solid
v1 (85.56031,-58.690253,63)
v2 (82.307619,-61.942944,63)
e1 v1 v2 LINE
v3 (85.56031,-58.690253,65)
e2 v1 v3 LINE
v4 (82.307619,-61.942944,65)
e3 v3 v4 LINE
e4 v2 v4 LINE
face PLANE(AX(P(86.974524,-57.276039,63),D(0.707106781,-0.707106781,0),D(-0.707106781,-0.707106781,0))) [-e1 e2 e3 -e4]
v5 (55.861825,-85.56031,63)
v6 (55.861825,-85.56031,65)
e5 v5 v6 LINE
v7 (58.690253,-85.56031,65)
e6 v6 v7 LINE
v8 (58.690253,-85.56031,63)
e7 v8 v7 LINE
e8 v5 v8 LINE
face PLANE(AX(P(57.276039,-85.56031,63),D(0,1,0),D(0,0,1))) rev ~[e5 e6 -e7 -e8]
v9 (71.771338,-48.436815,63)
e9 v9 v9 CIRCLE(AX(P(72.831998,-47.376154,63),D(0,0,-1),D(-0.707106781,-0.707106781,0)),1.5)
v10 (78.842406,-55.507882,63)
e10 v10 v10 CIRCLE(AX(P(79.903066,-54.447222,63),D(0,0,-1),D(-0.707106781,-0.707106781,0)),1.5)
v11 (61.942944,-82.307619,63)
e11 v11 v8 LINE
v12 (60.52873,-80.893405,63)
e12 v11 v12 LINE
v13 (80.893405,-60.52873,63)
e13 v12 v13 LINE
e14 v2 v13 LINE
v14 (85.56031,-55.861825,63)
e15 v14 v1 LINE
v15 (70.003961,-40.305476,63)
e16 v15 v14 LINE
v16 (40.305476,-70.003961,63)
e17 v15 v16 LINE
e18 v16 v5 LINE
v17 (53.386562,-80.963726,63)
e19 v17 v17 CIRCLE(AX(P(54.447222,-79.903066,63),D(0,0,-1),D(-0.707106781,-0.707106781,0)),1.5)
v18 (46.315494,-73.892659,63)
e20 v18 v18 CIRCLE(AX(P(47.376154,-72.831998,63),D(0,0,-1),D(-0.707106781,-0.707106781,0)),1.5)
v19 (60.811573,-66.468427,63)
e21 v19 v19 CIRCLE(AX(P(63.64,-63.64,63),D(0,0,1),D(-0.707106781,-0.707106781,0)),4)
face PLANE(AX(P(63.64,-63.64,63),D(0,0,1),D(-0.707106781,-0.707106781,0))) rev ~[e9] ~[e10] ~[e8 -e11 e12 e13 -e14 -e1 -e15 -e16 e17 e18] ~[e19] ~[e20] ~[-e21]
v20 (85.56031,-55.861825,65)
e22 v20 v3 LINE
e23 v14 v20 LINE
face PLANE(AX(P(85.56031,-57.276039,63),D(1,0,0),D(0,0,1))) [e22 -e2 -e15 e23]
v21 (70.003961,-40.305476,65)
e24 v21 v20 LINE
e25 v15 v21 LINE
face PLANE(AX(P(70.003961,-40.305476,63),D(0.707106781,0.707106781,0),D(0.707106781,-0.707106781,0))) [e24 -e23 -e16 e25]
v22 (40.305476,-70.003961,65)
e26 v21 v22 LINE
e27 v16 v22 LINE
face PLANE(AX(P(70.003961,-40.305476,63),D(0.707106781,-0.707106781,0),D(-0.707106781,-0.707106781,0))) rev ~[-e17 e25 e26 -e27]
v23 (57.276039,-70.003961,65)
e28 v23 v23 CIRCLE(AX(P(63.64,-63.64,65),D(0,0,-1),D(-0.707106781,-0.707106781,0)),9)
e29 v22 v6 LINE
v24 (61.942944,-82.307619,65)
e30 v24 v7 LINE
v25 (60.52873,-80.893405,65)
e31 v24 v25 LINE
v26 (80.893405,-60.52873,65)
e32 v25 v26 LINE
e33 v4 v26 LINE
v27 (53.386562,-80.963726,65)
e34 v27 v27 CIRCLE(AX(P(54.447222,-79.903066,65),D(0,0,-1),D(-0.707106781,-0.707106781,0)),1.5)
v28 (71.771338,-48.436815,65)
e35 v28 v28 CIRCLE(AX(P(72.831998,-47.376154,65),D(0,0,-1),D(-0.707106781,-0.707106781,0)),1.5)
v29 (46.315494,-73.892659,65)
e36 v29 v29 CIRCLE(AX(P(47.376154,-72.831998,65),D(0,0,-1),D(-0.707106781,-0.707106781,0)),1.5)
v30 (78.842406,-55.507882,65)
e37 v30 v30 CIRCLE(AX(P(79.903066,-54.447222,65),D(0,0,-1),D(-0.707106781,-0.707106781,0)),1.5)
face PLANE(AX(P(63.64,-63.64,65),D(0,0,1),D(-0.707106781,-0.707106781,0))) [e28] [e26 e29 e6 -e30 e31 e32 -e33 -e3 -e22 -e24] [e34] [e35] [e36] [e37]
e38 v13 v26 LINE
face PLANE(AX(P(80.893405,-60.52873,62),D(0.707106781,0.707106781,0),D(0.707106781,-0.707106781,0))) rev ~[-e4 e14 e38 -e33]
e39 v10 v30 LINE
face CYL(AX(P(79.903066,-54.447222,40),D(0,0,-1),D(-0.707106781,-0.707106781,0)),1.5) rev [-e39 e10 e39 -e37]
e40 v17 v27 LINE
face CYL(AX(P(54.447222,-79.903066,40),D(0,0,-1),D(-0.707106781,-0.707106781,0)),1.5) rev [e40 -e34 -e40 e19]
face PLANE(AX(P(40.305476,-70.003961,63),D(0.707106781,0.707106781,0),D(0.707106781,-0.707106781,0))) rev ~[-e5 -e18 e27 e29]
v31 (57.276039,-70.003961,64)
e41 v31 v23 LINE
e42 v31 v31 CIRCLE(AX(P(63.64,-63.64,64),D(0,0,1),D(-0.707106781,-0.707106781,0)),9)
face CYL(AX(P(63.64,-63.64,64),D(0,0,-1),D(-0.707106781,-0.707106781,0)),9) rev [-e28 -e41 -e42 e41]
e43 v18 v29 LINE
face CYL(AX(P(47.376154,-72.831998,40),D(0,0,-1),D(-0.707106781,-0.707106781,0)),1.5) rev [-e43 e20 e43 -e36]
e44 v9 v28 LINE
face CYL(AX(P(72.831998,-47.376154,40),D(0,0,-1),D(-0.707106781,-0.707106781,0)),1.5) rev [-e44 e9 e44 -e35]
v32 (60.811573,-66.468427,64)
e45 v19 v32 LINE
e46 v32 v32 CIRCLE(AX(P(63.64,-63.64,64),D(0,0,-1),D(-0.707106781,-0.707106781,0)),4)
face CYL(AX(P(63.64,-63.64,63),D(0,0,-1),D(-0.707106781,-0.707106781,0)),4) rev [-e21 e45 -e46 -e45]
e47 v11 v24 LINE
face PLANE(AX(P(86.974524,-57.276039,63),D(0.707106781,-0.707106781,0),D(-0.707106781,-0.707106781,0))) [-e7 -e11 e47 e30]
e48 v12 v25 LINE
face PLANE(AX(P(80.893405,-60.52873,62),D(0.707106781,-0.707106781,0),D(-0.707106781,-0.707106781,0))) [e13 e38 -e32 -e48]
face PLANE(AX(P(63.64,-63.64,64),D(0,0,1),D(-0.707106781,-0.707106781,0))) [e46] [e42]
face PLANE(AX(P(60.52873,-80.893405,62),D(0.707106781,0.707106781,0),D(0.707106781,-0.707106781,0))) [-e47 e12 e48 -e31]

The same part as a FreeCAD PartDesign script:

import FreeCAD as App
import Part
import Sketcher

V = App.Vector
Q = App.Units.Quantity


def edges_at(feature, points):
    """Names of the edges that pass closest to the given points."""
    edges = feature.Shape.Edges
    near = lambda p: min(range(len(edges)), key=lambda i: edges[i].distToShape(Part.Vertex(*p))[0])
    return sorted({f"Edge{near(p) + 1}" for p in points})


def add_polygon(sketch, points):
    """Adds a closed chain of lines whose ends are joined by coincident constraints."""
    first, n = sketch.GeometryCount, len(points)
    for a, b in zip(points, points[1:] + points[:1]):
        sketch.addGeometry(Part.LineSegment(App.Vector(*a, 0), App.Vector(*b, 0)), False)
    for i in range(n):
        sketch.addConstraint(Sketcher.Constraint("Coincident", first + i, 2, first + (i + 1) % n, 1))

doc = App.newDocument("Part")
body = doc.addObject("PartDesign::Body", "Body")

# Sketch on XY plane
sketch1 = body.newObject("Sketcher::SketchObject", "Sketch")
sketch1.AttachmentSupport = (doc.getObject("XY_Plane"), [""])
sketch1.MapMode = "FlatFace"
sketch1.addGeometry(Part.Circle(V(0, 0, 0), V(0, 0, 1), 9), False)
sketch1.addConstraint(Sketcher.Constraint("Coincident", 0, 3, -1, 1))
sketch1.addConstraint(Sketcher.Constraint("Diameter", 0, Q("18 mm")))
pad1 = body.newObject("PartDesign::Pad", "Pad")
pad1.Profile = sketch1
pad1.Length = 4
body2 = doc.addObject("PartDesign::Body", "Body001")
doc.recompute()

body.Placement = App.Placement(V(63.64, -63.64, 64), App.Rotation(V(0, 0, 1), 225))
boolean = body2.newObject("PartDesign::Boolean", "Boolean")
boolean.Type = "Fuse"
boolean.addObjects([body])
body3 = doc.addObject("PartDesign::Body", "Body002")

# Sketch on XY plane
sketch2 = body3.newObject("Sketcher::SketchObject", "Sketch001")
sketch2.AttachmentSupport = (doc.getObject("XY_Plane002"), [""])
sketch2.MapMode = "FlatFace"
sketch2.AttachmentOffset = App.Placement(V(0, 0, 24), App.Rotation())
add_polygon(sketch2, [(-14.4, 12), (-14.4, 10), (14.4, 10), (14.4, 12)])  # lines 0-3
sketch2.addConstraint(Sketcher.Constraint("Vertical", 0))
sketch2.addConstraint(Sketcher.Constraint("Horizontal", 1))
sketch2.addConstraint(Sketcher.Constraint("Vertical", 2))
sketch2.addConstraint(Sketcher.Constraint("Horizontal", 3))
sketch2.addConstraint(Sketcher.Constraint("DistanceY", 0, 2, 0, 1, Q("2 mm")))
sketch2.addConstraint(Sketcher.Constraint("DistanceX", 1, 1, 1, 2, Q("28.8 mm")))
sketch2.addConstraint(Sketcher.Constraint("DistanceY", -1, 1, 0, 2, Q("10 mm")))
sketch2.addConstraint(Sketcher.Constraint("DistanceX", 0, 2, -1, 1, Q("14.4 mm")))
pad2 = body3.newObject("PartDesign::Pad", "Pad001")
pad2.Profile = sketch2
pad2.Length = 4
body4 = doc.addObject("PartDesign::Body", "Body003")
doc.recompute()

body3.Placement = App.Placement(V(63.64, -63.64, 38), App.Rotation(V(0, 0, 1), 225))
boolean2 = body4.newObject("PartDesign::Boolean", "Boolean001")
boolean2.Type = "Fuse"
boolean2.addObjects([body3])
body5 = doc.addObject("PartDesign::Body", "Body004")

# Sketch on XY plane
sketch3 = body5.newObject("Sketcher::SketchObject", "Sketch002")
sketch3.AttachmentSupport = (doc.getObject("XY_Plane004"), [""])
sketch3.MapMode = "FlatFace"
sketch3.AttachmentOffset = App.Placement(V(0, 0, -57), App.Rotation())
sketch3.addGeometry(Part.Circle(V(18, 85, 0), V(0, 0, 1), 1.5), False)
sketch3.addConstraint(Sketcher.Constraint("Diameter", 0, Q("3 mm")))
sketch3.addConstraint(Sketcher.Constraint("DistanceX", -1, 1, 0, 3, Q("18 mm")))
sketch3.addConstraint(Sketcher.Constraint("DistanceY", -1, 1, 0, 3, Q("85 mm")))
pad3 = body5.newObject("PartDesign::Pad", "Pad002")
pad3.Profile = sketch3
pad3.Length = 60
body6 = doc.addObject("PartDesign::Body", "Body005")

# Sketch on XY plane
sketch4 = body6.newObject("Sketcher::SketchObject", "Sketch003")
sketch4.AttachmentSupport = (doc.getObject("XY_Plane005"), [""])
sketch4.MapMode = "FlatFace"
sketch4.AttachmentOffset = App.Placement(V(0, 0, -57), App.Rotation())
sketch4.addGeometry(Part.Circle(V(-18, 85, 0), V(0, 0, 1), 1.5), False)
sketch4.addConstraint(Sketcher.Constraint("Diameter", 0, Q("3 mm")))
sketch4.addConstraint(Sketcher.Constraint("DistanceX", 0, 3, -1, 1, Q("18 mm")))
sketch4.addConstraint(Sketcher.Constraint("DistanceY", -1, 1, 0, 3, Q("85 mm")))
pad4 = body6.newObject("PartDesign::Pad", "Pad003")
pad4.Profile = sketch4
pad4.Length = 60
body7 = doc.addObject("PartDesign::Body", "Body006")

# Sketch on XY plane
sketch5 = body7.newObject("Sketcher::SketchObject", "Sketch004")
sketch5.AttachmentSupport = (doc.getObject("XY_Plane006"), [""])
sketch5.MapMode = "FlatFace"
sketch5.AttachmentOffset = App.Placement(V(0, 0, -57), App.Rotation())
sketch5.addGeometry(Part.Circle(V(-18, 95, 0), V(0, 0, 1), 1.5), False)
sketch5.addConstraint(Sketcher.Constraint("Diameter", 0, Q("3 mm")))
sketch5.addConstraint(Sketcher.Constraint("DistanceX", 0, 3, -1, 1, Q("18 mm")))
sketch5.addConstraint(Sketcher.Constraint("DistanceY", -1, 1, 0, 3, Q("95 mm")))
pad5 = body7.newObject("PartDesign::Pad", "Pad004")
pad5.Profile = sketch5
pad5.Length = 60
body8 = doc.addObject("PartDesign::Body", "Body007")
body8.AllowCompound = True

# Sketch on XY plane
sketch6 = body8.newObject("Sketcher::SketchObject", "Sketch005")
sketch6.AttachmentSupport = (doc.getObject("XY_Plane007"), [""])
sketch6.MapMode = "FlatFace"
sketch6.AttachmentOffset = App.Placement(V(0, 0, -57), App.Rotation())
sketch6.addGeometry(Part.Circle(V(18, 95, 0), V(0, 0, 1), 1.5), False)
sketch6.addConstraint(Sketcher.Constraint("Diameter", 0, Q("3 mm")))
sketch6.addConstraint(Sketcher.Constraint("DistanceX", -1, 1, 0, 3, Q("18 mm")))
sketch6.addConstraint(Sketcher.Constraint("DistanceY", -1, 1, 0, 3, Q("95 mm")))
pad6 = body8.newObject("PartDesign::Pad", "Pad005")
pad6.Profile = sketch6
pad6.Length = 60
doc.recompute()

boolean3 = body8.newObject("PartDesign::Boolean", "Boolean002")
boolean3.Type = "Fuse"
boolean3.addObjects([body5])
doc.recompute()

boolean4 = body8.newObject("PartDesign::Boolean", "Boolean003")
boolean4.Type = "Fuse"
boolean4.addObjects([body6])
doc.recompute()

boolean5 = body8.newObject("PartDesign::Boolean", "Boolean004")
boolean5.Type = "Fuse"
boolean5.addObjects([body7])
body9 = doc.addObject("PartDesign::Body", "Body008")
body9.AllowCompound = True
doc.recompute()

body8.Placement = App.Placement(V(0, 0, 100), App.Rotation(V(0, 0, 1), 225))
boolean6 = body9.newObject("PartDesign::Boolean", "Boolean005")
boolean6.Type = "Fuse"
boolean6.addObjects([body8])
body10 = doc.addObject("PartDesign::Body", "Body009")

# Sketch on XY plane
sketch7 = body10.newObject("Sketcher::SketchObject", "Sketch006")
sketch7.AttachmentSupport = (doc.getObject("XY_Plane009"), [""])
sketch7.MapMode = "FlatFace"
sketch7.addGeometry(Part.Circle(V(0, 0, 0), V(0, 0, 1), 4), False)
sketch7.addConstraint(Sketcher.Constraint("Coincident", 0, 3, -1, 1))
sketch7.addConstraint(Sketcher.Constraint("Diameter", 0, Q("8 mm")))
pad7 = body10.newObject("PartDesign::Pad", "Pad006")
pad7.Profile = sketch7
pad7.Length = 4
body11 = doc.addObject("PartDesign::Body", "Body010")
doc.recompute()

body10.Placement = App.Placement(V(63.64, -63.64, 76), App.Rotation(V(0, 0, 1), 225))
boolean7 = body11.newObject("PartDesign::Boolean", "Boolean006")
boolean7.Type = "Fuse"
boolean7.addObjects([body10])
body12 = doc.addObject("PartDesign::Body", "Body011")

# Sketch on XY plane
sketch8 = body12.newObject("Sketcher::SketchObject", "Sketch007")
sketch8.AttachmentSupport = (doc.getObject("XY_Plane011"), [""])
sketch8.MapMode = "FlatFace"
sketch8.AttachmentOffset = App.Placement(V(0, 0, 34), App.Rotation())
add_polygon(sketch8, [(-21, 12), (-21, -12), (21, -12), (21, 12)])  # lines 0-3
sketch8.addConstraint(Sketcher.Constraint("Vertical", 0))
sketch8.addConstraint(Sketcher.Constraint("Horizontal", 1))
sketch8.addConstraint(Sketcher.Constraint("Vertical", 2))
sketch8.addConstraint(Sketcher.Constraint("Horizontal", 3))
sketch8.addConstraint(Sketcher.Constraint("Symmetric", 0, 2, 2, 2, -1, 1))
sketch8.addConstraint(Sketcher.Constraint("DistanceX", 1, 1, 1, 2, Q("42 mm")))
sketch8.addConstraint(Sketcher.Constraint("DistanceY", 0, 2, 0, 1, Q("24 mm")))
pad8 = body12.newObject("PartDesign::Pad", "Pad007")
pad8.Profile = sketch8
pad8.Length = 2
body13 = doc.addObject("PartDesign::Body", "Body012")
doc.recompute()

body12.Placement = App.Placement(V(63.64, -63.64, 42), App.Rotation(V(0, 0, 1), 225))
boolean8 = body13.newObject("PartDesign::Boolean", "Boolean007")
boolean8.Type = "Fuse"
boolean8.addObjects([body12])
doc.recompute()

boolean9 = body13.newObject("PartDesign::Boolean", "Boolean008")
boolean9.Type = "Cut"
boolean9.addObjects([body11])
body14 = doc.addObject("PartDesign::Body", "Body013")
doc.recompute()

body13.Placement = App.Placement(V(0, 0, -10), App.Rotation(V(0, 0, 1), 0))
boolean10 = body14.newObject("PartDesign::Boolean", "Boolean009")
boolean10.Type = "Fuse"
boolean10.addObjects([body13])
doc.recompute()

boolean11 = body14.newObject("PartDesign::Boolean", "Boolean010")
boolean11.Type = "Cut"
boolean11.addObjects([body9])
body15 = doc.addObject("PartDesign::Body", "Body014")
doc.recompute()

body14.Placement = App.Placement(V(0, 0, -3), App.Rotation(V(0, 0, 1), 0))
boolean12 = body15.newObject("PartDesign::Boolean", "Boolean011")
boolean12.Type = "Fuse"
boolean12.addObjects([body14])
doc.recompute()

boolean13 = body15.newObject("PartDesign::Boolean", "Boolean012")
boolean13.Type = "Cut"
boolean13.addObjects([body4])
doc.recompute()

boolean14 = body15.newObject("PartDesign::Boolean", "Boolean013")
boolean14.Type = "Cut"
boolean14.addObjects([body2])
doc.recompute()

chamfer = body15.newObject("PartDesign::Chamfer", "Chamfer")
chamfer.Base = (boolean14, edges_at(boolean14, [(86.975, -57.276, 64), (57.276, -86.975, 64)]))
chamfer.Size = 2

doc.recompute()
